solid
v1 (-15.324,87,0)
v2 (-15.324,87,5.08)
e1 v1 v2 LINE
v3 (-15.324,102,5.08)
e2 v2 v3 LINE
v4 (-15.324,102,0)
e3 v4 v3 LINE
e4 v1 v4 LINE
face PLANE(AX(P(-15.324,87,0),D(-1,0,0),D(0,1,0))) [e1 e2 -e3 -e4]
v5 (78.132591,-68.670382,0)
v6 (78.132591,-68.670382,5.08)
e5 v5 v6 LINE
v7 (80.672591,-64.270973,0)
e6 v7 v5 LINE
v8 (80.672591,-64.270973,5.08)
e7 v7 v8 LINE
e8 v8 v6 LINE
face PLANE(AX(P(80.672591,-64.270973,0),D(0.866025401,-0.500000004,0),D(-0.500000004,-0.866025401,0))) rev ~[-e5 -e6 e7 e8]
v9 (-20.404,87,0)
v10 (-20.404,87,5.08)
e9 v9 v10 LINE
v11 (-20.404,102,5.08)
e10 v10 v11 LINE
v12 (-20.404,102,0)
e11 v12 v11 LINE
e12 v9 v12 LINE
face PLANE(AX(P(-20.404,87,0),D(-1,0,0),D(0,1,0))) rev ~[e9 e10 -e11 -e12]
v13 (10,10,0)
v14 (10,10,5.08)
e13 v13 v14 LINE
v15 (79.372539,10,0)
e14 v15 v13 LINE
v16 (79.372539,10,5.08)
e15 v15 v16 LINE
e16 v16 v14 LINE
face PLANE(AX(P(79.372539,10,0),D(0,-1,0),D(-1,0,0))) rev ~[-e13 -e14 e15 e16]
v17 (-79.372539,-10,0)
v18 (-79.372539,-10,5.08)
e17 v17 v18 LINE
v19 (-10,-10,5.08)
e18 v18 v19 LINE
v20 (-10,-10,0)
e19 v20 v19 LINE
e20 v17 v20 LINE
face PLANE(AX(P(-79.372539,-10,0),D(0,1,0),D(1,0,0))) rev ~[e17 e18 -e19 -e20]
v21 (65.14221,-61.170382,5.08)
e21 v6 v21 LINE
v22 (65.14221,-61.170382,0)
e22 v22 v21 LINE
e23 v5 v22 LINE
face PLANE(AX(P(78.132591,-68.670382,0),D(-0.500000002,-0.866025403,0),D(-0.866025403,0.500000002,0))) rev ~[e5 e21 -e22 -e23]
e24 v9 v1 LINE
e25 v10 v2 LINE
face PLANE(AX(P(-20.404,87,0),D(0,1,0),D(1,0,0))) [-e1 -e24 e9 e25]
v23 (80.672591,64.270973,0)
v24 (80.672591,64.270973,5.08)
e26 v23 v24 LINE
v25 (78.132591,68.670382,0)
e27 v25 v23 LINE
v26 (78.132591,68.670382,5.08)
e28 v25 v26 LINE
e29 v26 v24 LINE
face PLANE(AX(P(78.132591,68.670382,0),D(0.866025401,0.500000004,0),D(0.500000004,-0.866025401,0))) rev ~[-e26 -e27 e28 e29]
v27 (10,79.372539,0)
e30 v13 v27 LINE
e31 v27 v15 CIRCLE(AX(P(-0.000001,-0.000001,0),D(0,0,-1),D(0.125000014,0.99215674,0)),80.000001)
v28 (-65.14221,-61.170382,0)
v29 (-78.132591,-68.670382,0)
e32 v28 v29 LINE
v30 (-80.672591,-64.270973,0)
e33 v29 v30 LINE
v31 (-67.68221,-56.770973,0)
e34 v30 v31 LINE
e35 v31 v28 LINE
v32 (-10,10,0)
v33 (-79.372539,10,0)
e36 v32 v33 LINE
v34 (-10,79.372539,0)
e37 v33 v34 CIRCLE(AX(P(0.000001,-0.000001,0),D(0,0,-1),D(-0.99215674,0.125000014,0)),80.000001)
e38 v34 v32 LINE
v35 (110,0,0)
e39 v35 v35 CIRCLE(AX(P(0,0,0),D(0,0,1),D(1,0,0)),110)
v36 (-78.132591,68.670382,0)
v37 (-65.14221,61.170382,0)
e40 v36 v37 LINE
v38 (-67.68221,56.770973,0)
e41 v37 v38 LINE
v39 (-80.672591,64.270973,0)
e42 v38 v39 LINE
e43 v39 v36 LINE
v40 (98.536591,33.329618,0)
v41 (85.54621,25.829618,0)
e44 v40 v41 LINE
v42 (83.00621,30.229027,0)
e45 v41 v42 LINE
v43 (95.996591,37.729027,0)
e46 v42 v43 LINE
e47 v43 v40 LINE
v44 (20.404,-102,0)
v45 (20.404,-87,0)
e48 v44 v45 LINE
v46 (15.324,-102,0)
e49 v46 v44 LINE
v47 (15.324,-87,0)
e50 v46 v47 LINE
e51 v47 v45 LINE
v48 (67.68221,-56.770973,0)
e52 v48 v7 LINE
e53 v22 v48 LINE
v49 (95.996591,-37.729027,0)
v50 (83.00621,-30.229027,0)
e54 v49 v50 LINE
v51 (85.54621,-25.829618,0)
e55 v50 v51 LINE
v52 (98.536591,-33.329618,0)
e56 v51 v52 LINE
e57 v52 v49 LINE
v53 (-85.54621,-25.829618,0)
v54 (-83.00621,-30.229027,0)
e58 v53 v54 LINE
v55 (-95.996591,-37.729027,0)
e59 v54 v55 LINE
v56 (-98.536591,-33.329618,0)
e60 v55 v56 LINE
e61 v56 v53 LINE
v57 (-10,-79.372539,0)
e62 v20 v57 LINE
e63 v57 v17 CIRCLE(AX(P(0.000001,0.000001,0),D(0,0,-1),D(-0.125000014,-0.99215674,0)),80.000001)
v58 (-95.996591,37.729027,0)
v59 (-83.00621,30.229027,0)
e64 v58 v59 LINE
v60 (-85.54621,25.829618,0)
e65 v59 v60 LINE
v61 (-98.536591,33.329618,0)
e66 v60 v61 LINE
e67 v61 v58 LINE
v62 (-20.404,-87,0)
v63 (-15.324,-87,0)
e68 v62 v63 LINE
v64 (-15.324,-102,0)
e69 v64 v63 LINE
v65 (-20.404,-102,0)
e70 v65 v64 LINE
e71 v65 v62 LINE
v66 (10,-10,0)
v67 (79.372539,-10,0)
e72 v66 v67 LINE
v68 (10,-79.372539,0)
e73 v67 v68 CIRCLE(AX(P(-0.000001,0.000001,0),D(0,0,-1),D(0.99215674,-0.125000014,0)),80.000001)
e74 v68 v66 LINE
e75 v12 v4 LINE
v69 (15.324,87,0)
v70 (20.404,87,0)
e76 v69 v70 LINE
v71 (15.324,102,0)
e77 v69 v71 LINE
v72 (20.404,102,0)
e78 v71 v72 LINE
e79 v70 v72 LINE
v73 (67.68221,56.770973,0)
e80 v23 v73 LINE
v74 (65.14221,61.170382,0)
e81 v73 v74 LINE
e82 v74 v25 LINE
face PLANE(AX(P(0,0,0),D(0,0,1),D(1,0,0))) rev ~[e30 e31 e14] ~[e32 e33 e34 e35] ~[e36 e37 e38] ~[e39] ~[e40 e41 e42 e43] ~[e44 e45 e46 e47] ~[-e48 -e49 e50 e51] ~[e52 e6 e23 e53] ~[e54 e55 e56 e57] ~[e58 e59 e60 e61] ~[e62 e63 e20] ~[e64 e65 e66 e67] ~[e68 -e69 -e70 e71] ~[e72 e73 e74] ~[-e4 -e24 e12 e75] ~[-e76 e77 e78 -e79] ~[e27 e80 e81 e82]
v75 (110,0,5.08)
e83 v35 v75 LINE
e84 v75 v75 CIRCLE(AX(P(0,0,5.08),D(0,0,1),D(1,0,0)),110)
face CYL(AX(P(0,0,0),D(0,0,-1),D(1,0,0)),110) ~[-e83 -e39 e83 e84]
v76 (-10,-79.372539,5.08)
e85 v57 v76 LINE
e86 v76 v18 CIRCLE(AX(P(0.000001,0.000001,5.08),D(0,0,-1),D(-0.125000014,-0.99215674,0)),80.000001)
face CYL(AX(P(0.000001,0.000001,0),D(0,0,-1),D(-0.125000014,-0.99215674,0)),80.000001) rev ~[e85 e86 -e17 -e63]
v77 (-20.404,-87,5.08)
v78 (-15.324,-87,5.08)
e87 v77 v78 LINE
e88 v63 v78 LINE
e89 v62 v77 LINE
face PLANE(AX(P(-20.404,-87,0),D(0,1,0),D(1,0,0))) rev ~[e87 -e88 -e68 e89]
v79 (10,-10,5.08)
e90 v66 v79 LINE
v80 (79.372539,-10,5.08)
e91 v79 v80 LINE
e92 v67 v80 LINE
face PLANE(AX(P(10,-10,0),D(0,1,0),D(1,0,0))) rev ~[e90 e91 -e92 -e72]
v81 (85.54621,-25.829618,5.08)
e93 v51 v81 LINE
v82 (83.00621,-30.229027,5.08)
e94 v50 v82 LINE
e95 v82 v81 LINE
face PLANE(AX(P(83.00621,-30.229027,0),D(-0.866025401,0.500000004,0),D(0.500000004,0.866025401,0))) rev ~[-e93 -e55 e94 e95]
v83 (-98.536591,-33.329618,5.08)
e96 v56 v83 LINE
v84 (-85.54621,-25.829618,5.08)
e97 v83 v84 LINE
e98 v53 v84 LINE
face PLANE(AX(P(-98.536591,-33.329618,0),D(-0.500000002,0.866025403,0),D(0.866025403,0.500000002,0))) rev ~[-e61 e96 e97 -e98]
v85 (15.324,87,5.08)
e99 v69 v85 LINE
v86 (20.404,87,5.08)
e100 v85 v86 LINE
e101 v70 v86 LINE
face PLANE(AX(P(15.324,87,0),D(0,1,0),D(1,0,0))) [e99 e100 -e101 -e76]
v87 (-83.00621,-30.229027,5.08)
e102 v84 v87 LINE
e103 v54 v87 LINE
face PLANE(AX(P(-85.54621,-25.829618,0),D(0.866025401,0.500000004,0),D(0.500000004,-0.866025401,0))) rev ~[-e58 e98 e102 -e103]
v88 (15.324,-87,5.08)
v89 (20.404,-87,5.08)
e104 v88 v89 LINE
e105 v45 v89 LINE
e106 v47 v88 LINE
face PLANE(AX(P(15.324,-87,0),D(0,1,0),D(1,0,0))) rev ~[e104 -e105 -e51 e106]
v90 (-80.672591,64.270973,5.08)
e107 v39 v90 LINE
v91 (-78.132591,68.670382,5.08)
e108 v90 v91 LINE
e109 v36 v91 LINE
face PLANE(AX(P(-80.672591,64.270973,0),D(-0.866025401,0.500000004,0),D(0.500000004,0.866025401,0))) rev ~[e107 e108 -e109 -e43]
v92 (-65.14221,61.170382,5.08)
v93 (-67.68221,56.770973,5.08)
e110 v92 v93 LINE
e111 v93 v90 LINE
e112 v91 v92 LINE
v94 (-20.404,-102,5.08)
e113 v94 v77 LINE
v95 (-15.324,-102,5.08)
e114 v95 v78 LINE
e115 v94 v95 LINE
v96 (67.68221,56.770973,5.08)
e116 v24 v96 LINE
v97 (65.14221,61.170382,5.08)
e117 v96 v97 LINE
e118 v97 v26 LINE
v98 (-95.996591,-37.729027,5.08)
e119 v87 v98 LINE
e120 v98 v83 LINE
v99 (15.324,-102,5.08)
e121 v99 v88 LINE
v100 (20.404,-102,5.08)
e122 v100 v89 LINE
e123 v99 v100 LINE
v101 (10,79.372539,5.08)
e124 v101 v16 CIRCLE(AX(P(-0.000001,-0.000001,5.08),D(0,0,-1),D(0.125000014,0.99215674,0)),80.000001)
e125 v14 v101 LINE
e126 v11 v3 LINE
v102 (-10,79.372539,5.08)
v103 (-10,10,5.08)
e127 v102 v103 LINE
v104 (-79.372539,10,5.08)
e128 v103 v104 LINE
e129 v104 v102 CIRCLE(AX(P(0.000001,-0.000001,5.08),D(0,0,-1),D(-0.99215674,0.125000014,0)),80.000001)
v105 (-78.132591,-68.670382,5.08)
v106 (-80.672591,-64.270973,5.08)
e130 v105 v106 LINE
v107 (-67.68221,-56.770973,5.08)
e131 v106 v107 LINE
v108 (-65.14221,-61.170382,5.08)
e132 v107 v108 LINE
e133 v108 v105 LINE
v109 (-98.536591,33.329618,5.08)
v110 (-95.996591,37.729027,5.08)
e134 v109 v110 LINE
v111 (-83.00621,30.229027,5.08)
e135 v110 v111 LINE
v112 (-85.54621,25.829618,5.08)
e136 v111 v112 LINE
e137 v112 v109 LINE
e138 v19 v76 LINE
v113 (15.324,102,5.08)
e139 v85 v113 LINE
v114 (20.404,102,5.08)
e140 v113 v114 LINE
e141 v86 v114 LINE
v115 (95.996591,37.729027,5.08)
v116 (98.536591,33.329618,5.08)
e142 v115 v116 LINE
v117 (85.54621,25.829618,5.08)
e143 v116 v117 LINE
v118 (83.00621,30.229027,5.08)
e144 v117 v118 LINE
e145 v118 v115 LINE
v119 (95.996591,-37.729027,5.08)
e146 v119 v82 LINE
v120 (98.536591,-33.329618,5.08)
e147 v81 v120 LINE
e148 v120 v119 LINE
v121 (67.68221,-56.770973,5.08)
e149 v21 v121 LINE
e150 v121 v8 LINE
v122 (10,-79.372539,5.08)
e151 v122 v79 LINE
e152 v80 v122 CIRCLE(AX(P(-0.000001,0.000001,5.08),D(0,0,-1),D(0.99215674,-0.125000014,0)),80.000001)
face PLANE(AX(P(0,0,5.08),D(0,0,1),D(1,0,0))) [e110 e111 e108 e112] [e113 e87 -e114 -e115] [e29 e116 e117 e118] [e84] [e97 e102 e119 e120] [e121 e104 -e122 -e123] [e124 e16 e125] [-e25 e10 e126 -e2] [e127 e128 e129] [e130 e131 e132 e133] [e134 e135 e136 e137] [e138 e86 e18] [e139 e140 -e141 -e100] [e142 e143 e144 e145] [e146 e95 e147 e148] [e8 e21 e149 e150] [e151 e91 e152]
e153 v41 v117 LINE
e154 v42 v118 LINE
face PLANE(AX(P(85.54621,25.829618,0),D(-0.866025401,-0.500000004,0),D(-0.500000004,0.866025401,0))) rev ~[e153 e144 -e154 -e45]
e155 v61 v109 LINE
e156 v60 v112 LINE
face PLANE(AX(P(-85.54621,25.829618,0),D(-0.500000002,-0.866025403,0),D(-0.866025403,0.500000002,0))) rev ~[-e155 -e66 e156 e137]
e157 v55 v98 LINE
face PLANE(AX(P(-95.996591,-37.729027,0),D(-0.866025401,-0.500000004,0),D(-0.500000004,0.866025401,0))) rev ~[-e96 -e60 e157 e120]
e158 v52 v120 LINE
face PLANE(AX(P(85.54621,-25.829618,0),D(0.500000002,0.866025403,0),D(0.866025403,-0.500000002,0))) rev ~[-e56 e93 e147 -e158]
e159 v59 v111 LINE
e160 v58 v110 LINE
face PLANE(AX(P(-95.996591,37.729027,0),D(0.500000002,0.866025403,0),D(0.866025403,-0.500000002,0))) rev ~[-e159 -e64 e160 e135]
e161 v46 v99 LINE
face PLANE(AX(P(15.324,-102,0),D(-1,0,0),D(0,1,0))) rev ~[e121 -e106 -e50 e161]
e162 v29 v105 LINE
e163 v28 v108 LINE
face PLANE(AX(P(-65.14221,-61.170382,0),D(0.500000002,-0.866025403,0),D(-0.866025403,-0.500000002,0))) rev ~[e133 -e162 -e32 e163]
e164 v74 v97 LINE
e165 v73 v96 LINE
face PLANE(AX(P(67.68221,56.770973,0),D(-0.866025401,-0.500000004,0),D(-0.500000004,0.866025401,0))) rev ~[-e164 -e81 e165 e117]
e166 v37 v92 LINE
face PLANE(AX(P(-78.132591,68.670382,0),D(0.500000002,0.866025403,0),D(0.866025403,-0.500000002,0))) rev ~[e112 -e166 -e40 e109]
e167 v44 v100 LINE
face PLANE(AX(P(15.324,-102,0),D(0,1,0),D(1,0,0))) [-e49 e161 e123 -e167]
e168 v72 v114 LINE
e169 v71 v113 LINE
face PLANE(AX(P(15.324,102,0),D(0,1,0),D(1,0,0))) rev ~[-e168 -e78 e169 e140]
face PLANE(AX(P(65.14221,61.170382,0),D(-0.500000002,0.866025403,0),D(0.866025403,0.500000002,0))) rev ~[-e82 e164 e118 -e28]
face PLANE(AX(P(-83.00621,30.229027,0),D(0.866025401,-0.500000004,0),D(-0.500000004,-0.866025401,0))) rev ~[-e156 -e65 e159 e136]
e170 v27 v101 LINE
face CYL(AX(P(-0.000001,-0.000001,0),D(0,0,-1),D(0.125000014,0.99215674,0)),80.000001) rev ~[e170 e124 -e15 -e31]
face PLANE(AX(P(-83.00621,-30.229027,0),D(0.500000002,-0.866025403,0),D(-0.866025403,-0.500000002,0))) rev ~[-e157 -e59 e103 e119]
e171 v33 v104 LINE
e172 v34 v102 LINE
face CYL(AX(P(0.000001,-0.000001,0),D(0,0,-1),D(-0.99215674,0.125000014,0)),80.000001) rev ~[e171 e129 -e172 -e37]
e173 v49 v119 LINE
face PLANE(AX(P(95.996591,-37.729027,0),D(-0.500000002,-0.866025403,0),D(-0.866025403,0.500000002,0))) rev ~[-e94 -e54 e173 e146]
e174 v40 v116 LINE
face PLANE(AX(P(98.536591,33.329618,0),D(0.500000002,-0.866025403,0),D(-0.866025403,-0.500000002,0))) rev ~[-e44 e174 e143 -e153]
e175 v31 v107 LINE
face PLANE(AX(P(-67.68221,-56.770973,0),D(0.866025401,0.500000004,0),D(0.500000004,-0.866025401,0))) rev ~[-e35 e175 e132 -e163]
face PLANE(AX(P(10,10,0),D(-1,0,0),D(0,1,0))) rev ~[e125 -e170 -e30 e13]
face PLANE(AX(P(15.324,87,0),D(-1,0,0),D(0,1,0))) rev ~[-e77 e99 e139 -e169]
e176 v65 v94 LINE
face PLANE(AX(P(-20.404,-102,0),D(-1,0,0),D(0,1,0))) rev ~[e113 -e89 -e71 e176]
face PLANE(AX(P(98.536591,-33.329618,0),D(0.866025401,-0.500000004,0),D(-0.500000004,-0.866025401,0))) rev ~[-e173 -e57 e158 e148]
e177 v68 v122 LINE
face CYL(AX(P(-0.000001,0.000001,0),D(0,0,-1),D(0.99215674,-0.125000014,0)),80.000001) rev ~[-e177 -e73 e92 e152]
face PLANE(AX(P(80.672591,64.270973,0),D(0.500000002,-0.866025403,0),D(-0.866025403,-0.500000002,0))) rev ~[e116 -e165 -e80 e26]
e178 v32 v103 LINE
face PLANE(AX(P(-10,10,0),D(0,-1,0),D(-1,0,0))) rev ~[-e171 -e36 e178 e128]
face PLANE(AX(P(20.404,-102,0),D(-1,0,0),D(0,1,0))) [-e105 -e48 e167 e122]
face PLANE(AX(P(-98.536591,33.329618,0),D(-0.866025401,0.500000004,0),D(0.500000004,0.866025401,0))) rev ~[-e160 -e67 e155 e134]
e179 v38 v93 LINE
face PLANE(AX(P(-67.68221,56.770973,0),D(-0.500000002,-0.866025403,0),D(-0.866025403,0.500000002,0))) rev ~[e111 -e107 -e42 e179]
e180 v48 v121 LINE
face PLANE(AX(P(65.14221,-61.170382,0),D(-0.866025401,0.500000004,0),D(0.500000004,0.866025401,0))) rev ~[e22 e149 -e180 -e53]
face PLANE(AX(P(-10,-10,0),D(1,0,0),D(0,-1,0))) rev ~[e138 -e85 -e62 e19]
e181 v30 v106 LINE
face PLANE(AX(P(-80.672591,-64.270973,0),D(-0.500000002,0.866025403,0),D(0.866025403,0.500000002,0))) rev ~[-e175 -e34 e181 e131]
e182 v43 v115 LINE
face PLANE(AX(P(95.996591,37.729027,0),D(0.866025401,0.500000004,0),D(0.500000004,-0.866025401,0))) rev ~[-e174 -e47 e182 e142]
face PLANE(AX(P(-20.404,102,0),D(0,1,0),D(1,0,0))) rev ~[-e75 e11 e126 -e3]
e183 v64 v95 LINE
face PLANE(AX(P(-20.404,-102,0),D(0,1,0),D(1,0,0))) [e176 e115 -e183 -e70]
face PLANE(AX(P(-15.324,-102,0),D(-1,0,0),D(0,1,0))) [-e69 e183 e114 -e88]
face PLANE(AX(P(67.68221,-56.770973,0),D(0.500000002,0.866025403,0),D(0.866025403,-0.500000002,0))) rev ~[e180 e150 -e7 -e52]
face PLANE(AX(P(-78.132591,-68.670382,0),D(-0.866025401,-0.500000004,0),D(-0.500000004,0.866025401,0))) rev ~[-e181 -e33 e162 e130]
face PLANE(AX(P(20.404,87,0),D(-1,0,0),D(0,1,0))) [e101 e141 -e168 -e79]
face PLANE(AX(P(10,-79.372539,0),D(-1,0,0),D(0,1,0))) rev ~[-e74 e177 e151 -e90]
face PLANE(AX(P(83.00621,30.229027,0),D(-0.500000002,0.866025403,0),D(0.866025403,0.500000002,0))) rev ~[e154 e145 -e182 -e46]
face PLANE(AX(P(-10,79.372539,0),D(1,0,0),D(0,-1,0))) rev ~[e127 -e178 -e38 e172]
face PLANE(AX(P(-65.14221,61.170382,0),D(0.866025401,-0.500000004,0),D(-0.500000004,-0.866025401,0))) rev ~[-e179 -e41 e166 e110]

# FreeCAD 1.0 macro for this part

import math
import FreeCAD as App
import Part
import Sketcher
from FreeCAD import Vector
Q = App.Units.Quantity


def add_polygon(sketch, points):
    """Adds a closed chain of lines whose ends are joined by coincident constraints."""
    first, n = sketch.GeometryCount, len(points)
    for a, b in zip(points, points[1:] + points[:1]):
        sketch.addGeometry(Part.LineSegment(App.Vector(*a, 0), App.Vector(*b, 0)), False)
    for i in range(n):
        sketch.addConstraint(Sketcher.Constraint("Coincident", first + i, 2, first + (i + 1) % n, 1))

doc = App.newDocument("Part")
body = doc.addObject("PartDesign::Body", "Body")

# Sketch on XY plane
sketch1 = body.newObject("Sketcher::SketchObject", "Sketch")
sketch1.AttachmentSupport = (doc.getObject("XY_Plane"), [""])
sketch1.MapMode = "FlatFace"
sketch1.addGeometry(Part.Circle(Vector(0, 0, 0), Vector(0, 0, 1), 110), False)  # 0
add_polygon(sketch1, [(-68, -57), (-65, -61), (-78, -69), (-81, -64)])  # lines 1-4
add_polygon(sketch1, [(-15, -102), (-20, -102), (-20, -87), (-15, -87)])  # lines 5-8
add_polygon(sketch1, [(-86, -26), (-83, -30), (-96, -38), (-99, -33)])  # lines 9-12
sketch1.addGeometry(Part.LineSegment(Vector(-10, -10, 0), Vector(-10, -79, 0)), False)  # 13
sketch1.addGeometry(Part.ArcOfCircle(Part.Circle(Vector(0, 0, 0), Vector(0, 0, 1), 80), math.radians(-173), math.radians(-97)), False)  # 14
sketch1.addGeometry(Part.LineSegment(Vector(-79, -10, 0), Vector(-10, -10, 0)), False)  # 15
add_polygon(sketch1, [(20, -102), (15, -102), (15, -87), (20, -87)])  # lines 16-19
add_polygon(sketch1, [(65, -61), (68, -57), (81, -64), (78, -69)])  # lines 20-23
sketch1.addGeometry(Part.LineSegment(Vector(10, -10, 0), Vector(79, -10, 0)), False)  # 24
sketch1.addGeometry(Part.ArcOfCircle(Part.Circle(Vector(0, 0, 0), Vector(0, 0, 1), 80), math.radians(-83), math.radians(-7)), False)  # 25
sketch1.addGeometry(Part.LineSegment(Vector(10, -79, 0), Vector(10, -10, 0)), False)  # 26
add_polygon(sketch1, [(83, -30), (86, -26), (99, -33), (96, -38)])  # lines 27-30
add_polygon(sketch1, [(-83, 30), (-86, 26), (-99, 33), (-96, 38)])  # lines 31-34
sketch1.addGeometry(Part.LineSegment(Vector(-10, 10, 0), Vector(-79, 10, 0)), False)  # 35
sketch1.addGeometry(Part.ArcOfCircle(Part.Circle(Vector(0, 0, 0), Vector(0, 0, 1), 80), math.radians(97), math.radians(173)), False)  # 36
sketch1.addGeometry(Part.LineSegment(Vector(-10, 79, 0), Vector(-10, 10, 0)), False)  # 37
add_polygon(sketch1, [(-65, 61), (-68, 57), (-81, 64), (-78, 69)])  # lines 38-41
add_polygon(sketch1, [(-15, 87), (-20, 87), (-20, 102), (-15, 102)])  # lines 42-45
sketch1.addGeometry(Part.LineSegment(Vector(79, 10, 0), Vector(10, 10, 0)), False)  # 46
sketch1.addGeometry(Part.LineSegment(Vector(10, 10, 0), Vector(10, 79, 0)), False)  # 47
sketch1.addGeometry(Part.ArcOfCircle(Part.Circle(Vector(0, 0, 0), Vector(0, 0, 1), 80), math.radians(7), math.radians(83)), False)  # 48
add_polygon(sketch1, [(86, 26), (83, 30), (96, 38), (99, 33)])  # lines 49-52
add_polygon(sketch1, [(20, 87), (15, 87), (15, 102), (20, 102)])  # lines 53-56
add_polygon(sketch1, [(68, 57), (65, 61), (78, 69), (81, 64)])  # lines 57-60
sketch1.addConstraint([
    Sketcher.Constraint("Coincident", 13, 2, 14, 2),
    Sketcher.Constraint("Coincident", 14, 1, 15, 1),
    Sketcher.Constraint("Coincident", 15, 2, 13, 1),
    Sketcher.Constraint("Coincident", 24, 2, 25, 2),
    Sketcher.Constraint("Coincident", 25, 1, 26, 1),
    Sketcher.Constraint("Coincident", 26, 2, 24, 1),
    Sketcher.Constraint("Coincident", 35, 2, 36, 2),
    Sketcher.Constraint("Coincident", 36, 1, 37, 1),
    Sketcher.Constraint("Coincident", 37, 2, 35, 1),
    Sketcher.Constraint("Coincident", 46, 2, 47, 1),
    Sketcher.Constraint("Coincident", 47, 2, 48, 2),
    Sketcher.Constraint("Coincident", 48, 1, 46, 1),
    Sketcher.Constraint("Horizontal", 5),
    Sketcher.Constraint("Vertical", 6),
    Sketcher.Constraint("Horizontal", 7),
    Sketcher.Constraint("Vertical", 8),
    Sketcher.Constraint("Vertical", 13),
    Sketcher.Constraint("Horizontal", 15),
    Sketcher.Constraint("Horizontal", 16),
    Sketcher.Constraint("Vertical", 17),
    Sketcher.Constraint("Horizontal", 18),
    Sketcher.Constraint("Vertical", 19),
    Sketcher.Constraint("Horizontal", 24),
    Sketcher.Constraint("Vertical", 26),
    Sketcher.Constraint("Horizontal", 35),
    Sketcher.Constraint("Vertical", 37),
    Sketcher.Constraint("Horizontal", 42),
    Sketcher.Constraint("Vertical", 43),
    Sketcher.Constraint("Horizontal", 44),
    Sketcher.Constraint("Vertical", 45),
    Sketcher.Constraint("Horizontal", 46),
    Sketcher.Constraint("Vertical", 47),
    Sketcher.Constraint("Horizontal", 53),
    Sketcher.Constraint("Vertical", 54),
    Sketcher.Constraint("Horizontal", 55),
    Sketcher.Constraint("Vertical", 56),
    Sketcher.Constraint("Coincident", 0, 3, -1, 1),
    Sketcher.Constraint("Coincident", 14, 3, -1, 1),
    Sketcher.Constraint("Coincident", 25, 3, -1, 1),
    Sketcher.Constraint("Coincident", 36, 3, -1, 1),
    Sketcher.Constraint("Coincident", 48, 3, -1, 1),
    Sketcher.Constraint("Equal", 14, 25),
    Sketcher.Constraint("Equal", 25, 36),
    Sketcher.Constraint("Equal", 36, 48),
    Sketcher.Constraint("Symmetric", 27, 2, 31, 2, -1, 1),
    Sketcher.Constraint("Symmetric", 28, 2, 32, 2, -1, 1),
    Sketcher.Constraint("Symmetric", 29, 2, 33, 2, -1, 1),
    Sketcher.Constraint("Symmetric", 30, 2, 34, 2, -1, 1),
    Sketcher.Constraint("Symmetric", 26, 2, 37, 2, -1, 1),
    Sketcher.Constraint("Symmetric", 20, 2, 38, 2, -1, 1),
    Sketcher.Constraint("Symmetric", 21, 2, 39, 2, -1, 1),
    Sketcher.Constraint("Symmetric", 22, 2, 40, 2, -1, 1),
    Sketcher.Constraint("Symmetric", 23, 2, 41, 2, -1, 1),
    Sketcher.Constraint("Symmetric", 18, 2, 42, 2, -1, 1),
    Sketcher.Constraint("Symmetric", 16, 2, 44, 2, -1, 1),
    Sketcher.Constraint("Symmetric", 15, 2, 46, 2, -1, 1),
    Sketcher.Constraint("Symmetric", 9, 2, 49, 2, -1, 1),
    Sketcher.Constraint("Symmetric", 10, 2, 50, 2, -1, 1),
    Sketcher.Constraint("Symmetric", 11, 2, 51, 2, -1, 1),
    Sketcher.Constraint("Symmetric", 12, 2, 52, 2, -1, 1),
    Sketcher.Constraint("Symmetric", 7, 2, 53, 2, -1, 1),
    Sketcher.Constraint("Symmetric", 5, 2, 55, 2, -1, 1),
    Sketcher.Constraint("Symmetric", 1, 2, 57, 2, -1, 1),
    Sketcher.Constraint("Symmetric", 2, 2, 58, 2, -1, 1),
    Sketcher.Constraint("Symmetric", 3, 2, 59, 2, -1, 1),
    Sketcher.Constraint("Symmetric", 4, 2, 60, 2, -1, 1),
    Sketcher.Constraint("Symmetric", 8, 2, 16, 2, -2),
    Sketcher.Constraint("Symmetric", 6, 2, 18, 2, -2),
    Sketcher.Constraint("Symmetric", 4, 2, 20, 2, -2),
    Sketcher.Constraint("Symmetric", 3, 2, 21, 2, -2),
    Sketcher.Constraint("Symmetric", 2, 2, 22, 2, -2),
    Sketcher.Constraint("Symmetric", 1, 2, 23, 2, -2),
    Sketcher.Constraint("Symmetric", 15, 2, 26, 2, -2),
    Sketcher.Constraint("Symmetric", 12, 2, 27, 2, -2),
    Sketcher.Constraint("Symmetric", 11, 2, 28, 2, -2),
    Sketcher.Constraint("Symmetric", 10, 2, 29, 2, -2),
    Sketcher.Constraint("Symmetric", 9, 2, 30, 2, -2),
    Sketcher.Constraint("Perpendicular", 1, 2),
    Sketcher.Constraint("Perpendicular", 2, 3),
    Sketcher.Constraint("Perpendicular", 3, 4),
    Sketcher.Constraint("Perpendicular", 4, 9),
    Sketcher.Constraint("Perpendicular", 9, 10),
    Sketcher.Constraint("Perpendicular", 10, 11),
    Sketcher.Constraint("Perpendicular", 11, 12),
    Sketcher.Constraint("Equal", 46, 13),
    Sketcher.Constraint("Equal", 3, 9),
    Sketcher.Constraint("Equal", 4, 10),
    Sketcher.Constraint("Diameter", 0, Q("220 mm")),
    Sketcher.Constraint("Radius", 14, Q("80.000001 mm")),
    Sketcher.Constraint("DistanceY", 6, 1, 6, 2, Q("15 mm")),
    Sketcher.Constraint("Angle", 1, Q("-60 deg")),
    Sketcher.Constraint("Distance", 2, Q("15 mm")),
    Sketcher.Constraint("DistanceY", 5, 2, -1, 1, Q("102 mm")),
    Sketcher.Constraint("DistanceX", 13, 2, -1, 1, Q("10 mm")),
    Sketcher.Constraint("DistanceX", 5, 2, 5, 1, Q("5.08 mm")),
    Sketcher.Constraint("Distance", 1, Q("5.08 mm")),
    Sketcher.Constraint("DistanceX", 5, 2, -1, 1, Q("20.404 mm")),
    Sketcher.Constraint("DistanceX", 1, 2, -1, 1, Q("65.14221 mm")),
    Sketcher.Constraint("DistanceY", 1, 2, -1, 1, Q("61.170382 mm")),
    Sketcher.Constraint("DistanceX", 9, 2, -1, 1, Q("83.00621 mm")),
    Sketcher.Constraint("DistanceY", 11, 2, -1, 1, Q("33.329618 mm")),
])
pad1 = body.newObject("PartDesign::Pad", "Pad")
pad1.Profile = sketch1
pad1.Length = 5.08

doc.recompute()
